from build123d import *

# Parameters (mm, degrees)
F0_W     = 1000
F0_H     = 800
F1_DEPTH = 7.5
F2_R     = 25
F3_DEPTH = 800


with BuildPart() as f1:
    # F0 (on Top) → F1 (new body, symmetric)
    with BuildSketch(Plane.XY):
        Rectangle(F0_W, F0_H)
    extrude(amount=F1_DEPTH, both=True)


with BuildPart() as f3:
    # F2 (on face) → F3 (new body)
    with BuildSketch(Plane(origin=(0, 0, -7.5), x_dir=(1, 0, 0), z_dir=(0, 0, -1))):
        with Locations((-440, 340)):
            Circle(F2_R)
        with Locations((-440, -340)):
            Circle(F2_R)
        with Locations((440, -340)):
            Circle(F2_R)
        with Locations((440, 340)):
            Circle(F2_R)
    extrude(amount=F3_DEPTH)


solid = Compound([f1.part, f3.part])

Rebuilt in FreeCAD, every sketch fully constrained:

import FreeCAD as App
import Part
import Sketcher

V = App.Vector
Q = App.Units.Quantity


def add_polygon(sketch, points):
    """Adds a closed chain of lines whose ends are joined by coincident constraints."""
    first, n = sketch.GeometryCount, len(points)
    for a, b in zip(points, points[1:] + points[:1]):
        sketch.addGeometry(Part.LineSegment(App.Vector(*a, 0), App.Vector(*b, 0)), False)
    for i in range(n):
        sketch.addConstraint(Sketcher.Constraint("Coincident", first + i, 2, first + (i + 1) % n, 1))

doc = App.newDocument("Part")
body = doc.addObject("PartDesign::Body", "Body")

# Sketch on XY plane
sketch1 = doc.addObject("Sketcher::SketchObject", "Sketch")
body.addObject(sketch1)
sketch1.AttachmentSupport = (doc.XY_Plane, [""])
sketch1.MapMode = "FlatFace"
add_polygon(sketch1, [(-500, 400), (-500, -400), (500, -400), (500, 400)])  # lines 0-3
sketch1.addConstraint(Sketcher.Constraint("Vertical", 0))
sketch1.addConstraint(Sketcher.Constraint("Horizontal", 1))
sketch1.addConstraint(Sketcher.Constraint("Vertical", 2))
sketch1.addConstraint(Sketcher.Constraint("Horizontal", 3))
sketch1.addConstraint(Sketcher.Constraint("Symmetric", 0, 2, 2, 2, -1, 1))
sketch1.addConstraint(Sketcher.Constraint("DistanceX", 1, 1, 1, 2, Q("1000 mm")))
sketch1.addConstraint(Sketcher.Constraint("DistanceY", 0, 2, 0, 1, Q("800 mm")))
pad1 = doc.addObject("PartDesign::Pad", "Pad")
body.addObject(pad1)
pad1.Profile = sketch1
pad1.Length = 15
pad1.Midplane = True
body2 = doc.addObject("PartDesign::Body", "Body001")
body2.AllowCompound = True

# Sketch on XY plane
sketch2 = doc.addObject("Sketcher::SketchObject", "Sketch001")
body2.addObject(sketch2)
sketch2.AttachmentSupport = (doc.getObject("XY_Plane001"), [""])
sketch2.MapMode = "FlatFace"
sketch2.AttachmentOffset = App.Placement(V(0, 0, -7.5), App.Rotation())
sketch2.addGeometry(Part.Circle(V(-440, -340, 0), V(0, 0, 1), 25), False)
sketch2.addGeometry(Part.Circle(V(-440, 340, 0), V(0, 0, 1), 25), False)
sketch2.addGeometry(Part.Circle(V(440, 340, 0), V(0, 0, 1), 25), False)
sketch2.addGeometry(Part.Circle(V(440, -340, 0), V(0, 0, 1), 25), False)
sketch2.addConstraint(Sketcher.Constraint("Equal", 0, 1))
sketch2.addConstraint(Sketcher.Constraint("Equal", 1, 2))
sketch2.addConstraint(Sketcher.Constraint("Equal", 2, 3))
sketch2.addConstraint(Sketcher.Constraint("Symmetric", 0, 3, 2, 3, -1, 1))
sketch2.addConstraint(Sketcher.Constraint("Symmetric", 1, 3, 3, 3, -1, 1))
sketch2.addConstraint(Sketcher.Constraint("Symmetric", 1, 3, 2, 3, -2))
sketch2.addConstraint(Sketcher.Constraint("Diameter", 0, Q("50 mm")))
sketch2.addConstraint(Sketcher.Constraint("DistanceX", 0, 3, -1, 1, Q("440 mm")))
sketch2.addConstraint(Sketcher.Constraint("DistanceY", 0, 3, -1, 1, Q("340 mm")))
pad2 = doc.addObject("PartDesign::Pad", "Pad001")
body2.addObject(pad2)
pad2.Profile = sketch2
pad2.Length = 800
pad2.Reversed = True

doc.recompute()
